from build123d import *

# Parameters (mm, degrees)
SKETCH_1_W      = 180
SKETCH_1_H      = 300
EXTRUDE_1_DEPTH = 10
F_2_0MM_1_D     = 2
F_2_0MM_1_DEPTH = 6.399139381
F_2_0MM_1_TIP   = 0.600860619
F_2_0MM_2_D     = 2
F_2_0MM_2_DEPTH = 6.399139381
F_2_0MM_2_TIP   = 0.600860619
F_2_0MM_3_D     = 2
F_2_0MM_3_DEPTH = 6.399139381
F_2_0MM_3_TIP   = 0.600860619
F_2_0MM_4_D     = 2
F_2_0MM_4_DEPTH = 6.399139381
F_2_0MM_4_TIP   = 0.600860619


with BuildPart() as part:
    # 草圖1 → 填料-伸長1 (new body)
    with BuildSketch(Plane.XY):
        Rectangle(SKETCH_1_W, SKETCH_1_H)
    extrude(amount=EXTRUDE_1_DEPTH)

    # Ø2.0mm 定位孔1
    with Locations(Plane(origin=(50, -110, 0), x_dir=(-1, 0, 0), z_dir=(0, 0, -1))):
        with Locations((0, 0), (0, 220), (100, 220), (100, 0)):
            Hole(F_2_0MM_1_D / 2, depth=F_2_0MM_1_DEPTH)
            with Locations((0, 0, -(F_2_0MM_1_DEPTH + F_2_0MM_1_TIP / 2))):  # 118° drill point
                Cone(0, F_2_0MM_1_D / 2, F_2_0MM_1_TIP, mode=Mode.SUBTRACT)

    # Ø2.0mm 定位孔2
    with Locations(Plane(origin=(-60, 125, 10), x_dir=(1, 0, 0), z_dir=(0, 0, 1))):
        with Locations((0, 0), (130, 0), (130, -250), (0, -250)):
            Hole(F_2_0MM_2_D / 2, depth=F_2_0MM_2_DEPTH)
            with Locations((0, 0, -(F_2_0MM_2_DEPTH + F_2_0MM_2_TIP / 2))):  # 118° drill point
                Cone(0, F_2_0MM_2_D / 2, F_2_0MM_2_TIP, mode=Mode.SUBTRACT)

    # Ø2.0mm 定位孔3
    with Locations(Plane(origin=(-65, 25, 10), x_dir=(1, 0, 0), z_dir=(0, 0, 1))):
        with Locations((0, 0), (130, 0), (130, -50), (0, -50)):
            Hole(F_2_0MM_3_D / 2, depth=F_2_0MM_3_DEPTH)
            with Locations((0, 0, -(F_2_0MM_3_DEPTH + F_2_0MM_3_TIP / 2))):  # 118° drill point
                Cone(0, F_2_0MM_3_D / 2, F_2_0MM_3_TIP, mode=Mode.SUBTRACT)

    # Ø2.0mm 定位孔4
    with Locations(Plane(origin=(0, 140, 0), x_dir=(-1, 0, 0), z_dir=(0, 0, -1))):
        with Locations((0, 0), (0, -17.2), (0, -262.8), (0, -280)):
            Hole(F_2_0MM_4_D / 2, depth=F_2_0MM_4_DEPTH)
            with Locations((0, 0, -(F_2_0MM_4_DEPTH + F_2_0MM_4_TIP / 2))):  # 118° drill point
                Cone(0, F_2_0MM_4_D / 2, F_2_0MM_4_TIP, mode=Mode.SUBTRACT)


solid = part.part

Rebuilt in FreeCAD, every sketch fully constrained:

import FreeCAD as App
import Part
import Sketcher

V = App.Vector


def add_polygon(sketch, points):
    """Adds a closed chain of lines whose ends are joined by coincident constraints."""
    first, n = sketch.GeometryCount, len(points)
    for a, b in zip(points, points[1:] + points[:1]):
        sketch.addGeometry(Part.LineSegment(App.Vector(*a, 0), App.Vector(*b, 0)), False)
    for i in range(n):
        sketch.addConstraint(Sketcher.Constraint("Coincident", first + i, 2, first + (i + 1) % n, 1))

doc = App.newDocument("Part")
body = doc.addObject("PartDesign::Body", "Body")

sketch1 = body.newObject("Sketcher::SketchObject", "Sketch")
sketch1.AttachmentSupport = (doc.getObject("XY_Plane"), [""])
sketch1.MapMode = "FlatFace"
add_polygon(sketch1, [(-90, 150), (-90, -150), (90, -150), (90, 150)])
sketch1.addConstraint([
    Sketcher.Constraint("Vertical", 0),
    Sketcher.Constraint("Horizontal", 1),
    Sketcher.Constraint("Vertical", 2),
    Sketcher.Constraint("Horizontal", 3),
    Sketcher.Constraint("Symmetric", 0, 2, 2, 2, -1, 1),
    Sketcher.Constraint("DistanceX", 1, 1, 1, 2, 180.0),
    Sketcher.Constraint("DistanceY", 0, 2, 0, 1, 300.0),
])
pad1 = body.newObject("PartDesign::Pad", "Pad")
pad1.Profile = sketch1
pad1.Length = 10

sketch2 = body.newObject("Sketcher::SketchObject", "Sketch001")
sketch2.AttachmentSupport = (doc.getObject("XY_Plane"), [""])
sketch2.MapMode = "FlatFace"
sketch2.addGeometry([
    Part.Circle(V(50, -110, 0), V(0, 0, 1), 1),
    Part.Circle(V(50, 110, 0), V(0, 0, 1), 1),
    Part.Circle(V(-50, 110, 0), V(0, 0, 1), 1),
    Part.Circle(V(-50, -110, 0), V(0, 0, 1), 1),
], False)
sketch2.addConstraint([
    Sketcher.Constraint("Equal", 0, 1),
    Sketcher.Constraint("Equal", 1, 2),
    Sketcher.Constraint("Equal", 2, 3),
    Sketcher.Constraint("Symmetric", 0, 3, 2, 3, -1, 1),
    Sketcher.Constraint("Symmetric", 1, 3, 3, 3, -1, 1),
    Sketcher.Constraint("Symmetric", 1, 3, 2, 3, -2),
    Sketcher.Constraint("Diameter", 0, 2.0),
    Sketcher.Constraint("DistanceX", -1, 1, 0, 3, 50.0),
    Sketcher.Constraint("DistanceY", 0, 3, -1, 1, 110.0),
])
doc.recompute()
hole = body.newObject("PartDesign::Hole", "Hole")
hole.Profile = sketch2
hole.ThreadType = "None"
hole.Diameter = 2
hole.DepthType = "Dimension"
hole.Depth = 6.399139
hole.DrillPoint = "Angled"
hole.DrillPointAngle = 118
hole.Reversed = True

sketch3 = body.newObject("Sketcher::SketchObject", "Sketch002")
sketch3.AttachmentSupport = (doc.getObject("XY_Plane"), [""])
sketch3.MapMode = "FlatFace"
sketch3.AttachmentOffset = App.Placement(V(0, 0, 10), App.Rotation())
sketch3.addGeometry([
    Part.Circle(V(-60, 125, 0), V(0, 0, 1), 1),
    Part.Circle(V(70, 125, 0), V(0, 0, 1), 1),
    Part.Circle(V(70, -125, 0), V(0, 0, 1), 1),
    Part.Circle(V(-60, -125, 0), V(0, 0, 1), 1),
], False)
sketch3.addConstraint([
    Sketcher.Constraint("Equal", 0, 1),
    Sketcher.Constraint("Equal", 1, 2),
    Sketcher.Constraint("Equal", 2, 3),
    Sketcher.Constraint("Symmetric", 1, 3, 2, 3, -1),
    Sketcher.Constraint("Symmetric", 0, 3, 3, 3, -1),
    Sketcher.Constraint("Horizontal", 0, 3, 1, 3),
    Sketcher.Constraint("Diameter", 0, 2.0),
    Sketcher.Constraint("DistanceX", 0, 3, -1, 1, 60.0),
    Sketcher.Constraint("DistanceY", -1, 1, 0, 3, 125.0),
    Sketcher.Constraint("DistanceX", -1, 1, 1, 3, 70.0),
])
doc.recompute()
hole2 = body.newObject("PartDesign::Hole", "Hole001")
hole2.Profile = sketch3
hole2.ThreadType = "None"
hole2.Diameter = 2
hole2.DepthType = "Dimension"
hole2.Depth = 6.399139
hole2.DrillPoint = "Angled"
hole2.DrillPointAngle = 118

sketch4 = body.newObject("Sketcher::SketchObject", "Sketch003")
sketch4.AttachmentSupport = (doc.getObject("XY_Plane"), [""])
sketch4.MapMode = "FlatFace"
sketch4.AttachmentOffset = App.Placement(V(0, 0, 10), App.Rotation())
sketch4.addGeometry([
    Part.Circle(V(-65, 25, 0), V(0, 0, 1), 1),
    Part.Circle(V(65, 25, 0), V(0, 0, 1), 1),
    Part.Circle(V(65, -25, 0), V(0, 0, 1), 1),
    Part.Circle(V(-65, -25, 0), V(0, 0, 1), 1),
], False)
sketch4.addConstraint([
    Sketcher.Constraint("Equal", 0, 1),
    Sketcher.Constraint("Equal", 1, 2),
    Sketcher.Constraint("Equal", 2, 3),
    Sketcher.Constraint("Symmetric", 0, 3, 2, 3, -1, 1),
    Sketcher.Constraint("Symmetric", 1, 3, 3, 3, -1, 1),
    Sketcher.Constraint("Symmetric", 0, 3, 1, 3, -2),
    Sketcher.Constraint("Diameter", 0, 2.0),
    Sketcher.Constraint("DistanceX", 0, 3, -1, 1, 65.0),
    Sketcher.Constraint("DistanceY", -1, 1, 0, 3, 25.0),
])
doc.recompute()
hole3 = body.newObject("PartDesign::Hole", "Hole002")
hole3.Profile = sketch4
hole3.ThreadType = "None"
hole3.Diameter = 2
hole3.DepthType = "Dimension"
hole3.Depth = 6.399139
hole3.DrillPoint = "Angled"
hole3.DrillPointAngle = 118

sketch5 = body.newObject("Sketcher::SketchObject", "Sketch004")
sketch5.AttachmentSupport = (doc.getObject("XY_Plane"), [""])
sketch5.MapMode = "FlatFace"
sketch5.addGeometry([
    Part.Circle(V(0, 140, 0), V(0, 0, 1), 1),
    Part.Circle(V(0, 122.8, 0), V(0, 0, 1), 1),
    Part.Circle(V(0, -122.8, 0), V(0, 0, 1), 1),
    Part.Circle(V(0, -140, 0), V(0, 0, 1), 1),
], False)
sketch5.addConstraint([
    Sketcher.Constraint("Equal", 0, 1),
    Sketcher.Constraint("Equal", 1, 2),
    Sketcher.Constraint("Equal", 2, 3),
    Sketcher.Constraint("Symmetric", 1, 3, 2, 3, -1, 1),
    Sketcher.Constraint("Symmetric", 0, 3, 3, 3, -1, 1),
    Sketcher.Constraint("PointOnObject", 0, 3, -2),
    Sketcher.Constraint("PointOnObject", 1, 3, -2),
    Sketcher.Constraint("Diameter", 0, 2.0),
    Sketcher.Constraint("DistanceY", -1, 1, 0, 3, 140.0),
    Sketcher.Constraint("DistanceY", -1, 1, 1, 3, 122.8),
])
doc.recompute()
hole4 = body.newObject("PartDesign::Hole", "Hole003")
hole4.Profile = sketch5
hole4.ThreadType = "None"
hole4.Diameter = 2
hole4.DepthType = "Dimension"
hole4.Depth = 6.399139
hole4.DrillPoint = "Angled"
hole4.DrillPointAngle = 118
hole4.Reversed = True

doc.recompute()
